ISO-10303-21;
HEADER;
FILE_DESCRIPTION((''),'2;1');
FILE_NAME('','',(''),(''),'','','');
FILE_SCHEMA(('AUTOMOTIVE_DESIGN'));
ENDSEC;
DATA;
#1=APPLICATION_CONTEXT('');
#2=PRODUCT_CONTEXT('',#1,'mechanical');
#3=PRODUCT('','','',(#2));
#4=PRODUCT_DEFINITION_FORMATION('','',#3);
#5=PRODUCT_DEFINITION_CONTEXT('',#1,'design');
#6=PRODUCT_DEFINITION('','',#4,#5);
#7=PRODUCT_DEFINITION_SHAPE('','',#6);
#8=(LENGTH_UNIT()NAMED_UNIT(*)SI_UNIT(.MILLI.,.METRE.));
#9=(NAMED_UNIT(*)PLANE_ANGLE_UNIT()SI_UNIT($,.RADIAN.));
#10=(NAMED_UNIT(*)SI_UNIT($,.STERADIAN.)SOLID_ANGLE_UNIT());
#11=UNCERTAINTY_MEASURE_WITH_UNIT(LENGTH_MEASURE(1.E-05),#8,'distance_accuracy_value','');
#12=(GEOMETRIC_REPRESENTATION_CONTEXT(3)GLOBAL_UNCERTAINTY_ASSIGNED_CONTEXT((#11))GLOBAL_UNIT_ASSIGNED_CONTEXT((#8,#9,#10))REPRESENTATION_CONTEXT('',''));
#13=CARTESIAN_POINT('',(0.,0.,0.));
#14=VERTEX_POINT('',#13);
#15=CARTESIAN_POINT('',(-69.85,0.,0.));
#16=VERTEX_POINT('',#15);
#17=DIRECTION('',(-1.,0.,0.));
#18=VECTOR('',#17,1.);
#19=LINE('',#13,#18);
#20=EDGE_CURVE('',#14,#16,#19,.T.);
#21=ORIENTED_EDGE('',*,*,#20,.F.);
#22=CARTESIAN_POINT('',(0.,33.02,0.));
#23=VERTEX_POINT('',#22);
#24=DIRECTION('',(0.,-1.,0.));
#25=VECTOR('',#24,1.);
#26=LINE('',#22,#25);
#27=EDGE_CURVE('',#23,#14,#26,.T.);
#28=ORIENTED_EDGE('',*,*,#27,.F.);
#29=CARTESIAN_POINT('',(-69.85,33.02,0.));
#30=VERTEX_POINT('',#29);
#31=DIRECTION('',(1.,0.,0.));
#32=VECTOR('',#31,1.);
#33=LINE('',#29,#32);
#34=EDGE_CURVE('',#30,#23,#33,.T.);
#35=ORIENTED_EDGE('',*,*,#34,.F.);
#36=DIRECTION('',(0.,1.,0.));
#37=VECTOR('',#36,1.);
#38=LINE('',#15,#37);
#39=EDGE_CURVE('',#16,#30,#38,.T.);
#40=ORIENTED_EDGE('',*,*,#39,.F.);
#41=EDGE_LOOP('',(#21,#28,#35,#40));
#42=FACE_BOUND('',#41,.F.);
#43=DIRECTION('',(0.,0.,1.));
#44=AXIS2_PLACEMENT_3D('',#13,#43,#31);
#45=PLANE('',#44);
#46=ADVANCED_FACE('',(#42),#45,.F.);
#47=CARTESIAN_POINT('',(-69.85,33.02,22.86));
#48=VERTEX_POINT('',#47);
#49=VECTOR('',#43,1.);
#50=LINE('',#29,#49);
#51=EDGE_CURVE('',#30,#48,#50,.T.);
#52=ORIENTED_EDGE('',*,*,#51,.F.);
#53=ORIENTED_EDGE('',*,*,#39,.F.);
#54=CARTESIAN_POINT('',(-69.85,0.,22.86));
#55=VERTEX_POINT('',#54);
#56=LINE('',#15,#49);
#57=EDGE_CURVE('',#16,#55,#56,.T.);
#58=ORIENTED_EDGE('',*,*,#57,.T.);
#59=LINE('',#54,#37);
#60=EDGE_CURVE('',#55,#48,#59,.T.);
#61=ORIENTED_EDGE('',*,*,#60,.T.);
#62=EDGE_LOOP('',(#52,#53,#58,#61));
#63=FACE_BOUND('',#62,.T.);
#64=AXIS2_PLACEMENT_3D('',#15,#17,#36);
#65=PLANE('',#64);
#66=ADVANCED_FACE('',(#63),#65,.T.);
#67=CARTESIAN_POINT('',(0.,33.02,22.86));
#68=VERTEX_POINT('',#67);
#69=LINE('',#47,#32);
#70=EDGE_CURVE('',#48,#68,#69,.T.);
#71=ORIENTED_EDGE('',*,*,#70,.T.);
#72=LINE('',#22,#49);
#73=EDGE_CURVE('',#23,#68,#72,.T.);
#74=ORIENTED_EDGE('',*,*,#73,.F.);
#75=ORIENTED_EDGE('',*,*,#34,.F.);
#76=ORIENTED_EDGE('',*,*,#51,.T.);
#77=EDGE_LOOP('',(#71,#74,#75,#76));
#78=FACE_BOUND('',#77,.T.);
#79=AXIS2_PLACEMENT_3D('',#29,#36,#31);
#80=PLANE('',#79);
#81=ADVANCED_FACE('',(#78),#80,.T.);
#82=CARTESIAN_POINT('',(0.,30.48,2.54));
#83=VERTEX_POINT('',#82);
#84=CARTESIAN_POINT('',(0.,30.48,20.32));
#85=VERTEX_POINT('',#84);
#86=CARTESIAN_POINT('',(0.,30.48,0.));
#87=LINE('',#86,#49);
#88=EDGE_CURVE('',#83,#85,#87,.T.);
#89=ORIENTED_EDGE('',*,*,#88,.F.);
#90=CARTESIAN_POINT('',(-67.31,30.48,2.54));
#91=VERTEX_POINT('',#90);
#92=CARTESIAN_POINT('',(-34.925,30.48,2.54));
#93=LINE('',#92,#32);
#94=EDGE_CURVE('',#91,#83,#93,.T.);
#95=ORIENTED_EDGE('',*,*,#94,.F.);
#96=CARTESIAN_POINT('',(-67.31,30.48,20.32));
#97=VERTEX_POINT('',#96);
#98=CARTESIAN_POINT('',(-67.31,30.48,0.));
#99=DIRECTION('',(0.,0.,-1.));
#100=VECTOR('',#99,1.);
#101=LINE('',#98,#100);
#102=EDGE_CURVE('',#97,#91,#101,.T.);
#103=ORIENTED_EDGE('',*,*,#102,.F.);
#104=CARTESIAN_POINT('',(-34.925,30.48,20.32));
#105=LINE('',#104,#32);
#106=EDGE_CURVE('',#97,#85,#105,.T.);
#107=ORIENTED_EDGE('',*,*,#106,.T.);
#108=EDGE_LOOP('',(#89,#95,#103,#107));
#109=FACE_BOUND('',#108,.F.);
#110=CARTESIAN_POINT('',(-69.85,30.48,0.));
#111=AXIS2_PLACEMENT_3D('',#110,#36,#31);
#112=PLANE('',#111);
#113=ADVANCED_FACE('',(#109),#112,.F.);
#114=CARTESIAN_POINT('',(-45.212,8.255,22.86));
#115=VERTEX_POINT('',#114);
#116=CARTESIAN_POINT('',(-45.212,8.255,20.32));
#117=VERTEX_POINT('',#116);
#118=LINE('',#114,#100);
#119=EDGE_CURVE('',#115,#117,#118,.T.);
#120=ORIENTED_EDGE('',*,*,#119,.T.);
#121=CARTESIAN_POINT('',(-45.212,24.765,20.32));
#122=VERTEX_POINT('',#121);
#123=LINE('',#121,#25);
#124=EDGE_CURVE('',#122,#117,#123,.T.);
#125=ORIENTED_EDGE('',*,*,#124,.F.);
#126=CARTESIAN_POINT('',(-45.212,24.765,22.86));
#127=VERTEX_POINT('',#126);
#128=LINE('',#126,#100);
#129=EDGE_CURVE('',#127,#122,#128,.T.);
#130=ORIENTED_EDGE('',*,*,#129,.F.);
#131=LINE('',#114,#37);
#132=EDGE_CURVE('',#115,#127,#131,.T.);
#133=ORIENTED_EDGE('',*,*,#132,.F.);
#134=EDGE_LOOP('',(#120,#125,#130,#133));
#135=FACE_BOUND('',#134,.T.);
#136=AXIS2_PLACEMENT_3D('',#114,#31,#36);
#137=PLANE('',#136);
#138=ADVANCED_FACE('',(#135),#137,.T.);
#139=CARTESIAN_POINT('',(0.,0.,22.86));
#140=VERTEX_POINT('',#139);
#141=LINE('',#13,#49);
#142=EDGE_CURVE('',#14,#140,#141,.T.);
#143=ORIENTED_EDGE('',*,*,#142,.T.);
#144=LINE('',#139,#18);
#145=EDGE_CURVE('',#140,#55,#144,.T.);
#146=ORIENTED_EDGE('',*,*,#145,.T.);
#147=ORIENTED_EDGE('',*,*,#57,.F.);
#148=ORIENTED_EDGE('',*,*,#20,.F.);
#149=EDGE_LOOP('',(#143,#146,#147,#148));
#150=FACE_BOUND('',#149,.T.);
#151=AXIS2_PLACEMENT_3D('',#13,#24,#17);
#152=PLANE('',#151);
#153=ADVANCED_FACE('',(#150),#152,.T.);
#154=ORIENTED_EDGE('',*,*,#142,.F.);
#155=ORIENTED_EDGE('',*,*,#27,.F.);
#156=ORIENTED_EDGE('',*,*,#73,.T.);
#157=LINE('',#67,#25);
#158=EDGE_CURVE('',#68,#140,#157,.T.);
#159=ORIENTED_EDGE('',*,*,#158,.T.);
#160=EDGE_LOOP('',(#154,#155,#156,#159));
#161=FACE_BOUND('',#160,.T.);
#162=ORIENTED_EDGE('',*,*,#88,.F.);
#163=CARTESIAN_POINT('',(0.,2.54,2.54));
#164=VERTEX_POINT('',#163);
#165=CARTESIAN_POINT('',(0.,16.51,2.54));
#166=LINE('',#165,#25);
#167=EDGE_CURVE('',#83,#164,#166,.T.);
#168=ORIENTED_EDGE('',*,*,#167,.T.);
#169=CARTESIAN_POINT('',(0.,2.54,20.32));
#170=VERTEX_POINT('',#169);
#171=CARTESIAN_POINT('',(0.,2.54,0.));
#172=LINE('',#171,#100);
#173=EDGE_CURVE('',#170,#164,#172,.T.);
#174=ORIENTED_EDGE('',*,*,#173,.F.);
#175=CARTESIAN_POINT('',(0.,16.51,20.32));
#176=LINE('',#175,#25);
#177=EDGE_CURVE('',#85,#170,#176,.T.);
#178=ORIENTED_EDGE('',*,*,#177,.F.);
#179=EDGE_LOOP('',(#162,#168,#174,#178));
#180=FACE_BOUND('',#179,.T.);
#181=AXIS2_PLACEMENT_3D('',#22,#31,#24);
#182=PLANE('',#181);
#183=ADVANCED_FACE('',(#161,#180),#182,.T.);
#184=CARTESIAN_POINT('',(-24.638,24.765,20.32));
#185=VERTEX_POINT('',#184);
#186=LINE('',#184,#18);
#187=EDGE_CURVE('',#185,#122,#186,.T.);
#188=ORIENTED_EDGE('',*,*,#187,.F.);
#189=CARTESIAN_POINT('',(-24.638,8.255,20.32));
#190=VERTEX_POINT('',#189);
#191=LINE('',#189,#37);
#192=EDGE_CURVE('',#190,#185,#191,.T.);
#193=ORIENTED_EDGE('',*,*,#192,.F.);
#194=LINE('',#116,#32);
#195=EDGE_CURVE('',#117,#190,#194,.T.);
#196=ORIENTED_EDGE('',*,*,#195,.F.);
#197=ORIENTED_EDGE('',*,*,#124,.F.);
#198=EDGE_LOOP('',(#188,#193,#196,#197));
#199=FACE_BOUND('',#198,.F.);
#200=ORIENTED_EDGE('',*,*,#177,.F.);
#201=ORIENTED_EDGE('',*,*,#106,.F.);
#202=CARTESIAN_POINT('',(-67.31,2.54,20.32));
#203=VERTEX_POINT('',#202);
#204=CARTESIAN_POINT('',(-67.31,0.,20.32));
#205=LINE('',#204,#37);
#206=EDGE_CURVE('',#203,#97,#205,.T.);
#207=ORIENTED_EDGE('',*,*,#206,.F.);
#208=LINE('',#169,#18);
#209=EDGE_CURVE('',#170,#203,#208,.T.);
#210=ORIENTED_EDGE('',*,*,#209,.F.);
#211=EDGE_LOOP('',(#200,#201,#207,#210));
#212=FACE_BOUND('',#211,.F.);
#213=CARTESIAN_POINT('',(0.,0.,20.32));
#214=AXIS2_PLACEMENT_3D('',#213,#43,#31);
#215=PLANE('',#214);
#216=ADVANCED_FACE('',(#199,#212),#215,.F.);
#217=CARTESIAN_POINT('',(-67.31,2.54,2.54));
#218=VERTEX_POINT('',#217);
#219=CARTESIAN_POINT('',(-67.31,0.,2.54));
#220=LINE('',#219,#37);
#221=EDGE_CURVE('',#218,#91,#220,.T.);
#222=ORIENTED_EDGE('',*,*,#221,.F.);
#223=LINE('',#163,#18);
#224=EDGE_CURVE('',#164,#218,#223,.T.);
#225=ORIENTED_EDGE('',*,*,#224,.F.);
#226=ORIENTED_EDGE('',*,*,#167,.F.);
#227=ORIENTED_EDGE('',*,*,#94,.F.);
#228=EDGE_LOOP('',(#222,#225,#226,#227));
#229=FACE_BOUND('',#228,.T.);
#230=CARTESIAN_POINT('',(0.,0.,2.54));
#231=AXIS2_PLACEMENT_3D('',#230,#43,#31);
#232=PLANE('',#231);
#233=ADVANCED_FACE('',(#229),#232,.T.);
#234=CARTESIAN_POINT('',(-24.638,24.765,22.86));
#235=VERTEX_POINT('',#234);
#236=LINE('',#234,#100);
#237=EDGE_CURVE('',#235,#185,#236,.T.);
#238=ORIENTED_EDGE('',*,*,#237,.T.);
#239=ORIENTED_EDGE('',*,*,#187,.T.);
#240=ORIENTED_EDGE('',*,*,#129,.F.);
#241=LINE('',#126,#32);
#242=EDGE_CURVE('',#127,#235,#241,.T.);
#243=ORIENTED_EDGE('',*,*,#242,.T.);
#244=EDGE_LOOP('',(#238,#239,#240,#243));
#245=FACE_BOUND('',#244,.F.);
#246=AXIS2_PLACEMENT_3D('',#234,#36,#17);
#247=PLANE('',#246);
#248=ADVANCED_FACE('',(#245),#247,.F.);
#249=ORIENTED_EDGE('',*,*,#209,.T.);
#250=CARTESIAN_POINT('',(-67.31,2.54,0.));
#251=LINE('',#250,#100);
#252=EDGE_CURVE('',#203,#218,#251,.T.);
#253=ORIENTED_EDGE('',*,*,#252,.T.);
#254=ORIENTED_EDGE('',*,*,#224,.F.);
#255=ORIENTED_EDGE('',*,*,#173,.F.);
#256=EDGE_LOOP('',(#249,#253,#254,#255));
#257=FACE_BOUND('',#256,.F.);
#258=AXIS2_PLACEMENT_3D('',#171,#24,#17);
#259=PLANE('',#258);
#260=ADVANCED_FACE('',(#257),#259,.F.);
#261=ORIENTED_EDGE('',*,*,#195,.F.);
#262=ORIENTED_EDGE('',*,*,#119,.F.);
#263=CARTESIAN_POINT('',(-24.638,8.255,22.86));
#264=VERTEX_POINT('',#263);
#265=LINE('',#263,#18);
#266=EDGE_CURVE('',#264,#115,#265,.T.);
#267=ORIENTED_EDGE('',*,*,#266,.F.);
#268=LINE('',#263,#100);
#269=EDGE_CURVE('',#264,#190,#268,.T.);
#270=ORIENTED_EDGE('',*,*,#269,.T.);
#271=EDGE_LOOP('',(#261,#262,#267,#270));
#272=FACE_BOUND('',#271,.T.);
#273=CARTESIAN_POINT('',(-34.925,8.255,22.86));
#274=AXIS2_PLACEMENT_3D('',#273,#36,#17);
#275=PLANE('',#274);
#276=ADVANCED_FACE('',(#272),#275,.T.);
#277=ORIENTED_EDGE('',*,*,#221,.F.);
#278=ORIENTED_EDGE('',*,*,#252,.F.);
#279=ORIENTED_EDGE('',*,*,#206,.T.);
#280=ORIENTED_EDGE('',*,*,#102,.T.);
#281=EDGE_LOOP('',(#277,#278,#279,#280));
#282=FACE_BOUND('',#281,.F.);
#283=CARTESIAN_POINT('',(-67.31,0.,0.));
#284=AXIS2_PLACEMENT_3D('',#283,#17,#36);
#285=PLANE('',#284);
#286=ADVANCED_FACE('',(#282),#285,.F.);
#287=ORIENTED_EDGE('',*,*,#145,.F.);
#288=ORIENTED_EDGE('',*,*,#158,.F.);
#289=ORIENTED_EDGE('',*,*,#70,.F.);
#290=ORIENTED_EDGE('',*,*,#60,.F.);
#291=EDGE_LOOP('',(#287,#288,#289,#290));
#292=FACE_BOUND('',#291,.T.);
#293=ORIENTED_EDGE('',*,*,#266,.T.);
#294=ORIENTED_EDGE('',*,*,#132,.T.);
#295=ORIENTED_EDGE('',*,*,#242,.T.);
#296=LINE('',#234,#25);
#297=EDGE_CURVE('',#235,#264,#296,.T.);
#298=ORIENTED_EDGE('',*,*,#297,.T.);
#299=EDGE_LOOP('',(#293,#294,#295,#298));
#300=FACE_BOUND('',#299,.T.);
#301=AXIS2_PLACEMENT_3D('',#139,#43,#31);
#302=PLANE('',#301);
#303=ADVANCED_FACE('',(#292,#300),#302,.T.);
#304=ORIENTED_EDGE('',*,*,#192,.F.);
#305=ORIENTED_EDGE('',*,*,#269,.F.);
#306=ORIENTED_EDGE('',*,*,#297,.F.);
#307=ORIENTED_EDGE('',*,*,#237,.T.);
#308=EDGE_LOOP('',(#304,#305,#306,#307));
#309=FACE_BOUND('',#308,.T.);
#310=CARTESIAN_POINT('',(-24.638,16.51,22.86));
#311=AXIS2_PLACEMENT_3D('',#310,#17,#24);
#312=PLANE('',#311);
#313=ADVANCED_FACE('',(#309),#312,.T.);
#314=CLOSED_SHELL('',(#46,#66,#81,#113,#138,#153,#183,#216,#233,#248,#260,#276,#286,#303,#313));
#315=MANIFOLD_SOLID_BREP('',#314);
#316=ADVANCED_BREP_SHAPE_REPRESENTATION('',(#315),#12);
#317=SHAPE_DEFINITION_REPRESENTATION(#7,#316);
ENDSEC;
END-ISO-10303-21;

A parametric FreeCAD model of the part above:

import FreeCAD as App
import Part
import Sketcher
from FreeCAD import Vector
Q = App.Units.Quantity


def faces_at(feature, points):
    """Names of the faces that lie closest to the given points."""
    faces = feature.Shape.Faces
    near = lambda p: min(range(len(faces)), key=lambda i: faces[i].distToShape(Part.Vertex(*p))[0])
    return sorted({f"Face{near(p) + 1}" for p in points})


def add_polygon(sketch, points):
    """Adds a closed chain of lines whose ends are joined by coincident constraints."""
    first, n = sketch.GeometryCount, len(points)
    for a, b in zip(points, points[1:] + points[:1]):
        sketch.addGeometry(Part.LineSegment(App.Vector(*a, 0), App.Vector(*b, 0)), False)
    for i in range(n):
        sketch.addConstraint(Sketcher.Constraint("Coincident", first + i, 2, first + (i + 1) % n, 1))

doc = App.newDocument("Part")
body = doc.addObject("PartDesign::Body", "Body")

# Sketch on XY plane
sketch1 = body.newObject("Sketcher::SketchObject", "Sketch")
sketch1.AttachmentSupport = (doc.getObject("XY_Plane"), [""])
sketch1.MapMode = "FlatFace"
add_polygon(sketch1, [(-70, 0), (0, 0), (0, 33), (-70, 33)])  # lines 0-3
sketch1.addConstraint(Sketcher.Constraint("Horizontal", 0))
sketch1.addConstraint(Sketcher.Constraint("Vertical", 1))
sketch1.addConstraint(Sketcher.Constraint("Horizontal", 2))
sketch1.addConstraint(Sketcher.Constraint("Vertical", 3))
sketch1.addConstraint(Sketcher.Constraint("Coincident", 0, 2, -1, 1))
sketch1.addConstraint(Sketcher.Constraint("DistanceY", 1, 1, 1, 2, Q("1.3 in")))
sketch1.addConstraint(Sketcher.Constraint("DistanceX", 0, 1, 0, 2, Q("2.75 in")))
pad1 = body.newObject("PartDesign::Pad", "Pad")
pad1.Profile = sketch1
pad1.Length = Q("0.9 in")
doc.recompute()

thickness = body.newObject("PartDesign::Thickness", "Thickness")
thickness.Base = (pad1, faces_at(pad1, [(0, 22.013, 15.24)]))
thickness.Value = Q("0.1 in")
thickness.Reversed = True
thickness.Join = "Intersection"

# Sketch on XY plane
sketch2 = body.newObject("Sketcher::SketchObject", "Sketch001")
sketch2.AttachmentSupport = (doc.getObject("XY_Plane"), [""])
sketch2.MapMode = "FlatFace"
sketch2.AttachmentOffset = App.Placement(Vector(0, 0, 0.9 * 25.4), App.Rotation())
add_polygon(sketch2, [(-45, 25), (-45, 8), (-25, 8), (-25, 25)])  # lines 0-3
sketch2.addConstraint(Sketcher.Constraint("Vertical", 0))
sketch2.addConstraint(Sketcher.Constraint("Horizontal", 1))
sketch2.addConstraint(Sketcher.Constraint("Vertical", 2))
sketch2.addConstraint(Sketcher.Constraint("Horizontal", 3))
sketch2.addConstraint(Sketcher.Constraint("DistanceX", 1, 1, 1, 2, Q("0.81 in")))
sketch2.addConstraint(Sketcher.Constraint("DistanceY", 0, 2, 0, 1, Q("0.65 in")))
sketch2.addConstraint(Sketcher.Constraint("DistanceX", 0, 2, -1, 1, Q("1.78 in")))
sketch2.addConstraint(Sketcher.Constraint("DistanceY", -1, 1, 0, 2, Q("0.325 in")))
pocket1 = body.newObject("PartDesign::Pocket", "Pocket")
pocket1.Profile = sketch2
pocket1.Length = Q("0.1 in")

doc.recompute()
